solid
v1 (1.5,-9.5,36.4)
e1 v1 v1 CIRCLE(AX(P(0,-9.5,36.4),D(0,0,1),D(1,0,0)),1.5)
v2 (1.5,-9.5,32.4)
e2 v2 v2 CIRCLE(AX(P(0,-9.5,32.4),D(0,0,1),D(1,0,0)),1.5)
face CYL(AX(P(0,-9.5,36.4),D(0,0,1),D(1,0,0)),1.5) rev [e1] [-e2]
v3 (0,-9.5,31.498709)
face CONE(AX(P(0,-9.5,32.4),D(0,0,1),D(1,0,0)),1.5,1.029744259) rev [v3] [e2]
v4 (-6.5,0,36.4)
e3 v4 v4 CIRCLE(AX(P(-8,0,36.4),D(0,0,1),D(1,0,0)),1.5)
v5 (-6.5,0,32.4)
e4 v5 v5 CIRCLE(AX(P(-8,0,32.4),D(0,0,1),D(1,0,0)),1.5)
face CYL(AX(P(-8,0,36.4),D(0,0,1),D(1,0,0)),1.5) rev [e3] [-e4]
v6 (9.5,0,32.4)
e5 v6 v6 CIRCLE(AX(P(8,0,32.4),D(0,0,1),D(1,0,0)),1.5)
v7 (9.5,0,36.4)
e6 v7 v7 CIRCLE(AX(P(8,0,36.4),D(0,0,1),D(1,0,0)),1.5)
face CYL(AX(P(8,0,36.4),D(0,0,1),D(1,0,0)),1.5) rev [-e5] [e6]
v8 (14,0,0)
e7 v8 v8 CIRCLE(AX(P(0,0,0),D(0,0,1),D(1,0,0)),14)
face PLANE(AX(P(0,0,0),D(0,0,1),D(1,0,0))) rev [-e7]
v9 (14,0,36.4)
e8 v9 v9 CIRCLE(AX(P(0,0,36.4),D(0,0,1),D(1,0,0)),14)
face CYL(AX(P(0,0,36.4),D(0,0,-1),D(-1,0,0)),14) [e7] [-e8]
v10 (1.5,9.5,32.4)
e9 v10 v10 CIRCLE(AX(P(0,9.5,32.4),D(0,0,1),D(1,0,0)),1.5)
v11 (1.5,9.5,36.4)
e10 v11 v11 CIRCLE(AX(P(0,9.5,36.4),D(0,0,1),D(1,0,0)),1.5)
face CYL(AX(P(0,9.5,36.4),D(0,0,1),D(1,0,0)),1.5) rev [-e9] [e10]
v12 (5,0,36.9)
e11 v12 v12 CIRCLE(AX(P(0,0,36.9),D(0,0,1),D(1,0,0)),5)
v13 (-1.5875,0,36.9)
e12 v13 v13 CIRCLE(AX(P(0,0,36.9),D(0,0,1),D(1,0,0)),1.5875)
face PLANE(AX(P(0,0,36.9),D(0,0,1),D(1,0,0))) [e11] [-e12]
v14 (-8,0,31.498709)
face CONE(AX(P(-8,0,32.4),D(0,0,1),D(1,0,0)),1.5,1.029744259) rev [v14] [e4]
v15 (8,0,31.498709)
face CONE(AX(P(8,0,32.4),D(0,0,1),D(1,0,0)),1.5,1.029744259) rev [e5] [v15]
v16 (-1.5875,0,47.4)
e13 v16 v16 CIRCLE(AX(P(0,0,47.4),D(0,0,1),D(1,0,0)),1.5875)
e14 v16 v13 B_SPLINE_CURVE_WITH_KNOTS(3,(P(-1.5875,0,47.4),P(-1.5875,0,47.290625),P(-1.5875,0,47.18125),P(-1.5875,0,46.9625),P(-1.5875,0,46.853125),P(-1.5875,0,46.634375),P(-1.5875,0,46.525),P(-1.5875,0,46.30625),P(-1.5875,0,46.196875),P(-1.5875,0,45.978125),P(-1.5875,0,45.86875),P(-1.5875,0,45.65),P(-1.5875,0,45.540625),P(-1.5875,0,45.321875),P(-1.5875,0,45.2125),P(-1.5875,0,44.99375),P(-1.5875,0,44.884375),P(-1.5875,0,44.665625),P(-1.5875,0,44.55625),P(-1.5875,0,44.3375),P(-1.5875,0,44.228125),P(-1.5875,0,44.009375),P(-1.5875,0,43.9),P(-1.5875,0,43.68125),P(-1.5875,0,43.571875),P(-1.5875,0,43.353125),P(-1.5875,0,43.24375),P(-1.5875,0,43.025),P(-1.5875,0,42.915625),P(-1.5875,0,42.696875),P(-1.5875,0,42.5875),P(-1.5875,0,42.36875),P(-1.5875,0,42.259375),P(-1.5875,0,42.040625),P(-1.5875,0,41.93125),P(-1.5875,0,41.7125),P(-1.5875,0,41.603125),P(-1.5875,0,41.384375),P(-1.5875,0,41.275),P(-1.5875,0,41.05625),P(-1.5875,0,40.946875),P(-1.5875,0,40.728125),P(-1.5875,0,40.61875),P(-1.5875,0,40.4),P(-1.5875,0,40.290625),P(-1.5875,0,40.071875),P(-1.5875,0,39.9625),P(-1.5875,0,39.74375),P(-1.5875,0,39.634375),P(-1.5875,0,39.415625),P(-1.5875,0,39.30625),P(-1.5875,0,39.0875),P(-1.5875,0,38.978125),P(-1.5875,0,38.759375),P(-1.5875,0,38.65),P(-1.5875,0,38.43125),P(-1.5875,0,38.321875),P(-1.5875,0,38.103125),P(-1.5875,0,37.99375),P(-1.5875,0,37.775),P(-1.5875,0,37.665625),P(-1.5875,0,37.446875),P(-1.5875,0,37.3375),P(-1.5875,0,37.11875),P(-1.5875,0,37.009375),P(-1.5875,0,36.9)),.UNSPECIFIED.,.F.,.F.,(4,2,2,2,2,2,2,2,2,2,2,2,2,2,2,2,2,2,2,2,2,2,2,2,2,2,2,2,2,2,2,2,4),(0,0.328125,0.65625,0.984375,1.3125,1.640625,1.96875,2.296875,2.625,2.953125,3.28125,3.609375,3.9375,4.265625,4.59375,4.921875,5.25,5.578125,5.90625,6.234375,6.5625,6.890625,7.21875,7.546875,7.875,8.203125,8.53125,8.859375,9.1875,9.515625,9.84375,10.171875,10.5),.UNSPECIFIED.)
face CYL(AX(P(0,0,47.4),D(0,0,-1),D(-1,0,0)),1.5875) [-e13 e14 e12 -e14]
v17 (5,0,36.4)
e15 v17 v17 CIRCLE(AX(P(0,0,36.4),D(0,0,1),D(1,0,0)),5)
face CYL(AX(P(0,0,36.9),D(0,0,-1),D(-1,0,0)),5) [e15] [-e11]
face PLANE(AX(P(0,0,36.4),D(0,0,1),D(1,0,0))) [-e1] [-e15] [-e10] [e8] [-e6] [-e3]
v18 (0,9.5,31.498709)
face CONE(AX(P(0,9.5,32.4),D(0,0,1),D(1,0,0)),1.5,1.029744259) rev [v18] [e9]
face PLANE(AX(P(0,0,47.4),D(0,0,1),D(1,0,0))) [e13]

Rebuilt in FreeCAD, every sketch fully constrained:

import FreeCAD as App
import Part
import Sketcher

V = App.Vector

doc = App.newDocument("Part")
params = doc.addObject("Spreadsheet::Sheet", "Params")
for row, (alias, value) in enumerate([
    ("sketch1_diameter", "28 mm"),
    ("pad1_length", "36.4 mm"),
    ("sketch2_diameter", "10 mm"),
    ("pad2_length", "0.5 mm"),
    ("pad3_length", "10.5 mm"),
    ("sketch4_diameter", "3 mm"),
    ("hole_diameter", "3 mm"),
    ("hole_depth", "4 mm"),
], start=1):
    params.set(f"A{row}", alias)
    params.set(f"B{row}", "=" + value)
    params.setAlias(f"B{row}", alias)

body = doc.addObject("PartDesign::Body", "Body")

sketch1 = doc.addObject("Sketcher::SketchObject", "Sketch")
body.addObject(sketch1)
sketch1.AttachmentSupport = (doc.XY_Plane, [""])
sketch1.MapMode = "FlatFace"
sketch1.addGeometry(Part.Circle(V(0, 0, 0), V(0, 0, 1), 14), False)
sketch1.addConstraint(Sketcher.Constraint("Coincident", 0, 3, -1, 1))
sketch1.addConstraint(Sketcher.Constraint("Diameter", 0, 28.0))
sketch1.setExpression("Constraints[1]", "Params.sketch1_diameter")
pad1 = doc.addObject("PartDesign::Pad", "Pad")
body.addObject(pad1)
pad1.Profile = sketch1
pad1.setExpression("Length", "Params.pad1_length")

sketch2 = doc.addObject("Sketcher::SketchObject", "Sketch001")
body.addObject(sketch2)
sketch2.AttachmentSupport = (doc.XY_Plane, [""])
sketch2.MapMode = "FlatFace"
sketch2.AttachmentOffset = App.Placement(V(0, 0, 36.4), App.Rotation())
sketch2.addGeometry(Part.Circle(V(0, 0, 0), V(0, 0, 1), 5), False)
sketch2.addConstraint(Sketcher.Constraint("Coincident", 0, 3, -1, 1))
sketch2.addConstraint(Sketcher.Constraint("Diameter", 0, 10.0))
sketch2.setExpression("Constraints[1]", "Params.sketch2_diameter")
pad2 = doc.addObject("PartDesign::Pad", "Pad001")
body.addObject(pad2)
pad2.Profile = sketch2
pad2.setExpression("Length", "Params.pad2_length")

sketch3 = doc.addObject("Sketcher::SketchObject", "Sketch002")
body.addObject(sketch3)
sketch3.AttachmentSupport = (doc.XY_Plane, [""])
sketch3.MapMode = "FlatFace"
sketch3.AttachmentOffset = App.Placement(V(0, 0, 36.9), App.Rotation())
sketch3.addGeometry(Part.Circle(V(0, 0, 0), V(0, 0, 1), 1.6), False)
sketch3.addConstraint(Sketcher.Constraint("Coincident", 0, 3, -1, 1))
sketch3.addConstraint(Sketcher.Constraint("Diameter", 0, 3.175))
pad3 = doc.addObject("PartDesign::Pad", "Pad002")
body.addObject(pad3)
pad3.Profile = sketch3
pad3.setExpression("Length", "Params.pad3_length")

sketch4 = doc.addObject("Sketcher::SketchObject", "Sketch003")
body.addObject(sketch4)
sketch4.AttachmentSupport = (doc.XY_Plane, [""])
sketch4.MapMode = "FlatFace"
sketch4.AttachmentOffset = App.Placement(V(0, 0, 36.4), App.Rotation())
sketch4.addGeometry(Part.Circle(V(0, 9.5, 0), V(0, 0, 1), 1.5), False)
sketch4.addGeometry(Part.Circle(V(0, -9.5, 0), V(0, 0, 1), 1.5), False)
sketch4.addGeometry(Part.Circle(V(8, 0, 0), V(0, 0, 1), 1.5), False)
sketch4.addGeometry(Part.Circle(V(-8, 0, 0), V(0, 0, 1), 1.5), False)
sketch4.addConstraint(Sketcher.Constraint("Equal", 0, 1))
sketch4.addConstraint(Sketcher.Constraint("Equal", 1, 2))
sketch4.addConstraint(Sketcher.Constraint("Equal", 2, 3))
sketch4.addConstraint(Sketcher.Constraint("Symmetric", 0, 3, 1, 3, -1, 1))
sketch4.addConstraint(Sketcher.Constraint("Symmetric", 2, 3, 3, 3, -1, 1))
sketch4.addConstraint(Sketcher.Constraint("PointOnObject", 0, 3, -2))
sketch4.addConstraint(Sketcher.Constraint("PointOnObject", 2, 3, -1))
sketch4.addConstraint(Sketcher.Constraint("Diameter", 0, 3.0))
sketch4.addConstraint(Sketcher.Constraint("DistanceX", -1, 1, 2, 3, 8.0))
sketch4.addConstraint(Sketcher.Constraint("DistanceY", 1, 3, 0, 3, 19.0))
sketch4.setExpression("Constraints[7]", "Params.sketch4_diameter")
doc.recompute()
hole = doc.addObject("PartDesign::Hole", "Hole")
body.addObject(hole)
hole.Profile = sketch4
hole.ThreadType = "None"
hole.setExpression("Diameter", "Params.hole_diameter")
hole.DepthType = "Dimension"
hole.setExpression("Depth", "Params.hole_depth")
hole.DrillPoint = "Angled"
hole.DrillPointAngle = 118

doc.recompute()
